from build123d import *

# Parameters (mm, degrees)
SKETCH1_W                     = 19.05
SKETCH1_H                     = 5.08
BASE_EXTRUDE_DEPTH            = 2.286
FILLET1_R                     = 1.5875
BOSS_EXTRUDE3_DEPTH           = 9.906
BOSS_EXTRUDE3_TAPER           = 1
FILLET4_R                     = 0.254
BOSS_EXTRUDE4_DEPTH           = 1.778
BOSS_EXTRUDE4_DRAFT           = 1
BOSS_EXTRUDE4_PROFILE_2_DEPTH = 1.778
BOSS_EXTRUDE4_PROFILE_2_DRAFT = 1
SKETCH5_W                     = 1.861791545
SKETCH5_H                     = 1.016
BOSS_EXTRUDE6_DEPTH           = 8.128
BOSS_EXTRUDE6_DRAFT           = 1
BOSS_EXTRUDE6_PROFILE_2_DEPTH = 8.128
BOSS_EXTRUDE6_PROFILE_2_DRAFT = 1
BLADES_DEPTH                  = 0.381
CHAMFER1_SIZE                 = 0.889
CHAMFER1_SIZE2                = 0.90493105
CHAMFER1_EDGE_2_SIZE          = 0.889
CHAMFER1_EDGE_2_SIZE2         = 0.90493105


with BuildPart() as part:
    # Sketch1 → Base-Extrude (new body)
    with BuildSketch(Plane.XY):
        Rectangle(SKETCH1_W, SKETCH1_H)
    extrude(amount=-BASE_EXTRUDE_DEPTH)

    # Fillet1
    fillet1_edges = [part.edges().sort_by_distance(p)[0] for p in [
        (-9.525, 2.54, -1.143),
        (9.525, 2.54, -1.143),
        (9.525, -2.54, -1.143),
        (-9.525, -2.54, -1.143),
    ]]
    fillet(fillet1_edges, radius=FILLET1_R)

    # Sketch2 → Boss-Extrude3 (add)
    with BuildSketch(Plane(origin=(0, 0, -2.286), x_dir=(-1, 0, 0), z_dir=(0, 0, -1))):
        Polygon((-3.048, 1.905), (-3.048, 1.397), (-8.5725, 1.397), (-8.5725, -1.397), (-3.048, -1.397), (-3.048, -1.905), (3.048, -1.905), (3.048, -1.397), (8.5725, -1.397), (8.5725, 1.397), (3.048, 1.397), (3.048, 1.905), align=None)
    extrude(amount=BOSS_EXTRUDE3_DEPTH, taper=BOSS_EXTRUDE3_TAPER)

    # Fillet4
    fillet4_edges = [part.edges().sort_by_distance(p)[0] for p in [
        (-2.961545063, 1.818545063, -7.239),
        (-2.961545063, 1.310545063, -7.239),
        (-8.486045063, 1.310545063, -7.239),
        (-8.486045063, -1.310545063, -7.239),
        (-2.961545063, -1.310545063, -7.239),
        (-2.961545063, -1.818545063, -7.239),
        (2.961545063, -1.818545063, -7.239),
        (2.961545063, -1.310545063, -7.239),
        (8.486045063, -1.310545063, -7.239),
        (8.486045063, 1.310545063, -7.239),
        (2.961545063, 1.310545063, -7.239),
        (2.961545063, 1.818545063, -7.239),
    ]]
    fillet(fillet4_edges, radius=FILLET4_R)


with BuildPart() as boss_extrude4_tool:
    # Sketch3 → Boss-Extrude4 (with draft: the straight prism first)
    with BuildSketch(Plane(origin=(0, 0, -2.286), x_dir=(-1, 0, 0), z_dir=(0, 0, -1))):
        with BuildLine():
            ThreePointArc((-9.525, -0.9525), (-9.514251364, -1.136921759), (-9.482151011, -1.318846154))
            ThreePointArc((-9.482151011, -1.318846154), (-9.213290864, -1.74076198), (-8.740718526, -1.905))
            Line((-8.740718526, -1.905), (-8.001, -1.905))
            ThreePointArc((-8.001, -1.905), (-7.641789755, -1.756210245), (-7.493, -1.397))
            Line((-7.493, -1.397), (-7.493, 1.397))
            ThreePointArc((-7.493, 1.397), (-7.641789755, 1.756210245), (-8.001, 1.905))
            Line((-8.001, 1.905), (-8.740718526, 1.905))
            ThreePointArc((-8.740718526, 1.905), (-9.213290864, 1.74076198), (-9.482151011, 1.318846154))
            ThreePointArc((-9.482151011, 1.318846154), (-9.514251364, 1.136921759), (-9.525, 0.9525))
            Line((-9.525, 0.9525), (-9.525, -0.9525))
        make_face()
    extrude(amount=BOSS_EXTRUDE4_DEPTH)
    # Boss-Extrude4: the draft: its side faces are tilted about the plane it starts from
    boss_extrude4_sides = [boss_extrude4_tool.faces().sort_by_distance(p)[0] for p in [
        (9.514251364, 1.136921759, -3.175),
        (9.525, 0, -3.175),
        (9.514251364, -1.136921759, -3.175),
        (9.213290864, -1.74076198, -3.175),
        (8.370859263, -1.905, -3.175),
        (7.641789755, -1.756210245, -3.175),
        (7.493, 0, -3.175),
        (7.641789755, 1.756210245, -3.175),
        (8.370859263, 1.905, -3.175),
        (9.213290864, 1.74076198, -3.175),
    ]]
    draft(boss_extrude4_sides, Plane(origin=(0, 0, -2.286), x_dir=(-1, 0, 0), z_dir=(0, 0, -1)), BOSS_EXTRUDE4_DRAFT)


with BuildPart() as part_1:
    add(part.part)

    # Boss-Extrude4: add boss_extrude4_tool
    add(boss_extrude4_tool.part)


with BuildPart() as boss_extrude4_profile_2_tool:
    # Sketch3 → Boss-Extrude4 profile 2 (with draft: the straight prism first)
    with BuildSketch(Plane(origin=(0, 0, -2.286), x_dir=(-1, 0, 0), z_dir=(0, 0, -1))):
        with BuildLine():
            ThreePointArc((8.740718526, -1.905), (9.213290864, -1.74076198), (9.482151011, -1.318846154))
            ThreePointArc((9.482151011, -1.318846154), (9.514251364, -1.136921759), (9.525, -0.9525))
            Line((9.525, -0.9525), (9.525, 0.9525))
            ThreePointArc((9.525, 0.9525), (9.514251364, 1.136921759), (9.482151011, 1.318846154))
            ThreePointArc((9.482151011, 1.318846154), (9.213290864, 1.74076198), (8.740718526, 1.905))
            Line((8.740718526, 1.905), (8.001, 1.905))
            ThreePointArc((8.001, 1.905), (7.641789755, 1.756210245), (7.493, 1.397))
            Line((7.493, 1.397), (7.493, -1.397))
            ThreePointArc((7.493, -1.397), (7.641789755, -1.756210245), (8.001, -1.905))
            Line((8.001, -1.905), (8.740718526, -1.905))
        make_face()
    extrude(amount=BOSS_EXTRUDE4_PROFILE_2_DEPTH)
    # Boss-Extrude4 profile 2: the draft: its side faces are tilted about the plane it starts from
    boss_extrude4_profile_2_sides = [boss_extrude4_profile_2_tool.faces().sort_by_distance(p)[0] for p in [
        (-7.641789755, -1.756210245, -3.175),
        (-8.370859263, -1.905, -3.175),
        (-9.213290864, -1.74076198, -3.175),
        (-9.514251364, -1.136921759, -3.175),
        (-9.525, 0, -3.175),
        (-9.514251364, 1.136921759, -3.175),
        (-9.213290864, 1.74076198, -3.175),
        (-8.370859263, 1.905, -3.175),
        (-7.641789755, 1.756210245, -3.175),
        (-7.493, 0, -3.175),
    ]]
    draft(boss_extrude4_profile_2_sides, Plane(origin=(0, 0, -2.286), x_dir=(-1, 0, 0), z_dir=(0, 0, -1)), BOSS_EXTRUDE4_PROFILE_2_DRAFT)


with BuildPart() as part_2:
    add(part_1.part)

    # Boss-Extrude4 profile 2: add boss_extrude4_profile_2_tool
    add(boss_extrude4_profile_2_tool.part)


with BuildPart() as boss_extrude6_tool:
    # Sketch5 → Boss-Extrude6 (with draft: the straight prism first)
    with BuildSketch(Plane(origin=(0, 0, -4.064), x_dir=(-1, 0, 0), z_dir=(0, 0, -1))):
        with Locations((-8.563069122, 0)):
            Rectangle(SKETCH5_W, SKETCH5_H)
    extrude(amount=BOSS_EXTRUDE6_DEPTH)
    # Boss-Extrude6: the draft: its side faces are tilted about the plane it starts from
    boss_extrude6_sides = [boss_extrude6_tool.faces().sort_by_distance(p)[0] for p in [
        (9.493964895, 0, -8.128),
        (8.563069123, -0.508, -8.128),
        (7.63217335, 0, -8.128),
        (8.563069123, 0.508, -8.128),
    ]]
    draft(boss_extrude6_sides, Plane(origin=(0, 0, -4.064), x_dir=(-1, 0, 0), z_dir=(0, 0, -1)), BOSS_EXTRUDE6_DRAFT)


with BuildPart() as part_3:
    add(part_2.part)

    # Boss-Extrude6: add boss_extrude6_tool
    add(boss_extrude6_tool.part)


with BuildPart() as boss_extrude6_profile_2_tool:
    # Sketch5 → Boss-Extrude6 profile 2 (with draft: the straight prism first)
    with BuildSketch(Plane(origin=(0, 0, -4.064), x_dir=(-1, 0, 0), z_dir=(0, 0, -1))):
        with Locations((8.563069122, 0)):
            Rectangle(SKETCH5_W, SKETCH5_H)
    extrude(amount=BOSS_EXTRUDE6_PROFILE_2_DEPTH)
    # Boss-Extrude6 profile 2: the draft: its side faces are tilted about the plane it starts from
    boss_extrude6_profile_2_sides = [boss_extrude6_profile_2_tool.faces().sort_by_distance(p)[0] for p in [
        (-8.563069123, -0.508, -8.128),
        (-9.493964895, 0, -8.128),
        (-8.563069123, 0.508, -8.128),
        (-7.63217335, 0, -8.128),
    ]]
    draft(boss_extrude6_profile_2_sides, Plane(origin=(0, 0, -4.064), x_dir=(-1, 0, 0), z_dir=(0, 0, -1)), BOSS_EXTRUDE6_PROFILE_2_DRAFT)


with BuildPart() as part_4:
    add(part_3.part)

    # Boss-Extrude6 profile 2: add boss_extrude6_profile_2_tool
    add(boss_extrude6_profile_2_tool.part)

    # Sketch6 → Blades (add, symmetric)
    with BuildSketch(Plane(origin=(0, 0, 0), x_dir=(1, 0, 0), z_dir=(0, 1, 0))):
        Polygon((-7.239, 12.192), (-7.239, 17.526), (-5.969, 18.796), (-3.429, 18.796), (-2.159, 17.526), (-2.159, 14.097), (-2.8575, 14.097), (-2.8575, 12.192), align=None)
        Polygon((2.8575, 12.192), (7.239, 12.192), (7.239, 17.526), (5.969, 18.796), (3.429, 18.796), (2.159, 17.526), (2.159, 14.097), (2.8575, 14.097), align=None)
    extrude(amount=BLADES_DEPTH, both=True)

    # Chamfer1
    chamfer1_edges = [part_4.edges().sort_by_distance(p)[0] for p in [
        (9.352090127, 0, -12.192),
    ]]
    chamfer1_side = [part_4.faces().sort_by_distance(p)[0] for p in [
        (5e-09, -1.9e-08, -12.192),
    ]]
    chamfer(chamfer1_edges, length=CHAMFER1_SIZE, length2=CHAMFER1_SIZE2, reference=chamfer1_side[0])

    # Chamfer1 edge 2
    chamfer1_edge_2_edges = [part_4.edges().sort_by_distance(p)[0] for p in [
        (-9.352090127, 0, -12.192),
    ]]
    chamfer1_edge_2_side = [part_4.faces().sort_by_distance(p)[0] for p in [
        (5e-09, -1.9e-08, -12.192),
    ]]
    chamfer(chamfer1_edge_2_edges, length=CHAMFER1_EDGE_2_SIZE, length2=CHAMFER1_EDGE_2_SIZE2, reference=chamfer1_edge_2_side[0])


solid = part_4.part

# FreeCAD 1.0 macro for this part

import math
import FreeCAD as App
import Part
import Sketcher

V = App.Vector
Q = App.Units.Quantity


def edges_at(feature, points):
    """Names of the edges that pass closest to the given points."""
    edges = feature.Shape.Edges
    near = lambda p: min(range(len(edges)), key=lambda i: edges[i].distToShape(Part.Vertex(*p))[0])
    return sorted({f"Edge{near(p) + 1}" for p in points})


def faces_at(feature, points):
    """Names of the faces that lie closest to the given points."""
    faces = feature.Shape.Faces
    near = lambda p: min(range(len(faces)), key=lambda i: faces[i].distToShape(Part.Vertex(*p))[0])
    return sorted({f"Face{near(p) + 1}" for p in points})


def add_polygon(sketch, points):
    """Adds a closed chain of lines whose ends are joined by coincident constraints."""
    first, n = sketch.GeometryCount, len(points)
    for a, b in zip(points, points[1:] + points[:1]):
        sketch.addGeometry(Part.LineSegment(App.Vector(*a, 0), App.Vector(*b, 0)), False)
    for i in range(n):
        sketch.addConstraint(Sketcher.Constraint("Coincident", first + i, 2, first + (i + 1) % n, 1))

doc = App.newDocument("Part")
params = doc.addObject("Spreadsheet::Sheet", "Params")
for row, (alias, value) in enumerate([
    ("sketch1_height", "0.2 in"),
    ("sketch1_width", "0.75 in"),
    ("pad1_length", "0.09 in"),
    ("fillet_radius", "0.0625 in"),
    ("sketch2_width", "0.24 in"),
    ("sketch2_height", "0.02 in"),
    ("sketch2_height2", "0.11 in"),
    ("pad2_length", "0.39 in"),
    ("pad2_taper", "-1 deg"),
    ("fillet2_radius", "0.01 in"),
    ("sketch3_radius", "0.03 in"),
    ("sketch3_radius2", "0.02 in"),
    ("sketch3_radius3", "0.0625 in"),
    ("sketch3_height", "0.11 in"),
    ("sketch3_height2", "0.075 in"),
    ("pad3_length", "0.07 in"),
    ("draft_angle", "1 deg"),
    ("sketch4_radius", "0.03 in"),
    ("sketch4_radius2", "0.02 in"),
    ("sketch4_radius3", "0.0625 in"),
    ("sketch4_height", "0.11 in"),
    ("sketch4_height2", "0.075 in"),
    ("pad4_length", "0.07 in"),
    ("draft2_angle", "1 deg"),
    ("sketch5_height", "0.04 in"),
    ("pad5_length", "0.32 in"),
    ("draft3_angle", "1 deg"),
    ("sketch6_height", "0.04 in"),
    ("pad6_length", "0.32 in"),
    ("draft4_angle", "1 deg"),
    ("sketch7_width", "0.1 in"),
    ("sketch7_height", "0.21 in"),
    ("sketch7_height2", "0.075 in"),
    ("pad7_length", "0.03 in"),
    ("chamfer_size", "0.035 in"),
    ("chamfer_size2", "0.904931 mm"),
    ("chamfer2_size", "0.035 in"),
    ("chamfer2_size2", "0.904931 mm"),
], start=1):
    params.set(f"A{row}", alias)
    params.set(f"B{row}", "=" + value)
    params.setAlias(f"B{row}", alias)

body = doc.addObject("PartDesign::Body", "Body")

sketch1 = body.newObject("Sketcher::SketchObject", "Sketch")
sketch1.AttachmentSupport = (doc.getObject("XY_Plane"), [""])
sketch1.MapMode = "FlatFace"
add_polygon(sketch1, [(-9.525, 2.54), (-9.525, -2.54), (9.525, -2.54), (9.525, 2.54)])
sketch1.addConstraint([
    Sketcher.Constraint("Vertical", 0),
    Sketcher.Constraint("Horizontal", 1),
    Sketcher.Constraint("Vertical", 2),
    Sketcher.Constraint("Horizontal", 3),
    Sketcher.Constraint("Symmetric", 0, 2, 2, 2, -1, 1),
    Sketcher.Constraint("DistanceY", 0, 2, 0, 1, Q("0.2 in")),
    Sketcher.Constraint("DistanceX", 1, 1, 1, 2, Q("0.75 in")),
])
sketch1.setExpression("Constraints[9]", "Params.sketch1_height")
sketch1.setExpression("Constraints[10]", "Params.sketch1_width")
pad1 = body.newObject("PartDesign::Pad", "Pad")
pad1.Profile = sketch1
pad1.setExpression("Length", "Params.pad1_length")
pad1.Reversed = True
doc.recompute()

fillet = body.newObject("PartDesign::Fillet", "Fillet")
fillet.Base = (pad1, edges_at(pad1, [
    (-9.525, 2.54, -1.143),
    (9.525, 2.54, -1.143),
    (9.525, -2.54, -1.143),
    (-9.525, -2.54, -1.143),
]))
fillet.setExpression("Radius", "Params.fillet_radius")

sketch2 = body.newObject("Sketcher::SketchObject", "Sketch001")
sketch2.AttachmentSupport = (doc.getObject("XY_Plane"), [""])
sketch2.MapMode = "FlatFace"
sketch2.AttachmentOffset = App.Placement(V(0, 0, -0.09 * 25.4), App.Rotation())
add_polygon(sketch2, [(3.048, 1.905), (3.048, 1.397), (8.5725, 1.397), (8.5725, -1.397), (3.048, -1.397), (3.048, -1.905), (-3.048, -1.905), (-3.048, -1.397), (-8.5725, -1.397), (-8.5725, 1.397), (-3.048, 1.397), (-3.048, 1.905)])
sketch2.addConstraint([
    Sketcher.Constraint("Vertical", 0),
    Sketcher.Constraint("Horizontal", 1),
    Sketcher.Constraint("Vertical", 2),
    Sketcher.Constraint("Horizontal", 3),
    Sketcher.Constraint("Vertical", 4),
    Sketcher.Constraint("Horizontal", 5),
    Sketcher.Constraint("Vertical", 6),
    Sketcher.Constraint("Horizontal", 7),
    Sketcher.Constraint("Vertical", 8),
    Sketcher.Constraint("Horizontal", 9),
    Sketcher.Constraint("Vertical", 10),
    Sketcher.Constraint("Horizontal", 11),
    Sketcher.Constraint("Symmetric", 0, 2, 6, 2, -1, 1),
    Sketcher.Constraint("Symmetric", 2, 2, 8, 2, -1, 1),
    Sketcher.Constraint("Symmetric", 4, 2, 10, 2, -1, 1),
    Sketcher.Constraint("Symmetric", 3, 2, 6, 2, -2),
    Sketcher.Constraint("DistanceX", 5, 2, 5, 1, Q("0.24 in")),
    Sketcher.Constraint("DistanceY", 0, 2, 0, 1, Q("0.02 in")),
    Sketcher.Constraint("DistanceY", 2, 2, 2, 1, Q("0.11 in")),
    Sketcher.Constraint("DistanceX", 1, 1, 1, 2, Q("0.2175 in")),
])
sketch2.setExpression("Constraints[28]", "Params.sketch2_width")
sketch2.setExpression("Constraints[29]", "Params.sketch2_height")
sketch2.setExpression("Constraints[30]", "Params.sketch2_height2")
pad2 = body.newObject("PartDesign::Pad", "Pad001")
pad2.Profile = sketch2
pad2.setExpression("Length", "Params.pad2_length")
pad2.Reversed = True
pad2.setExpression("TaperAngle", "Params.pad2_taper")
doc.recompute()

fillet2 = body.newObject("PartDesign::Fillet", "Fillet001")
fillet2.Base = (pad2, edges_at(pad2, [
    (-2.962, 1.819, -7.239),
    (-2.962, 1.311, -7.239),
    (-8.486, 1.311, -7.239),
    (-8.486, -1.311, -7.239),
    (-2.962, -1.311, -7.239),
    (-2.962, -1.819, -7.239),
    (2.962, -1.819, -7.239),
    (2.962, -1.311, -7.239),
    (8.486, -1.311, -7.239),
    (8.486, 1.311, -7.239),
    (2.962, 1.311, -7.239),
    (2.962, 1.819, -7.239),
]))
fillet2.setExpression("Radius", "Params.fillet2_radius")
body2 = doc.addObject("PartDesign::Body", "Body001")

sketch3 = body2.newObject("Sketcher::SketchObject", "Sketch002")
sketch3.AttachmentSupport = (doc.getObject("XY_Plane001"), [""])
sketch3.MapMode = "FlatFace"
sketch3.AttachmentOffset = App.Placement(V(0, 0, -0.09 * 25.4), App.Rotation())
sketch3.addGeometry([
    Part.ArcOfCircle(Part.Circle(V(7.9375, -0.9525, 0), V(0, 0, 1), 1.5875), math.radians(-13.342364), math.radians(0)),
    Part.ArcOfCircle(Part.Circle(V(8.740719, -1.143, 0), V(0, 0, 1), 0.762), math.radians(-90), math.radians(-13.342364)),
    Part.LineSegment(V(8.740719, -1.905, 0), V(8.001, -1.905, 0)),
    Part.ArcOfCircle(Part.Circle(V(8.001, -1.397, 0), V(0, 0, 1), 0.508), math.radians(180), math.radians(270)),
    Part.LineSegment(V(7.493, -1.397, 0), V(7.493, 1.397, 0)),
    Part.ArcOfCircle(Part.Circle(V(8.001, 1.397, 0), V(0, 0, 1), 0.508), math.radians(90), math.radians(180)),
    Part.LineSegment(V(8.001, 1.905, 0), V(8.740719, 1.905, 0)),
    Part.ArcOfCircle(Part.Circle(V(8.740719, 1.143, 0), V(0, 0, 1), 0.762), math.radians(13.342364), math.radians(90)),
    Part.ArcOfCircle(Part.Circle(V(7.9375, 0.9525, 0), V(0, 0, 1), 1.5875), math.radians(0), math.radians(13.342364)),
    Part.LineSegment(V(9.525, 0.9525, 0), V(9.525, -0.9525, 0)),
], False)
sketch3.addConstraint([
    Sketcher.Constraint("Tangent", 0, 1, 1, 2),
    Sketcher.Constraint("Tangent", 1, 1, 2, 1),
    Sketcher.Constraint("Tangent", 2, 2, 3, 2),
    Sketcher.Constraint("Tangent", 3, 1, 4, 1),
    Sketcher.Constraint("Tangent", 4, 2, 5, 2),
    Sketcher.Constraint("Tangent", 5, 1, 6, 1),
    Sketcher.Constraint("Tangent", 6, 2, 7, 2),
    Sketcher.Constraint("Tangent", 7, 1, 8, 2),
    Sketcher.Constraint("Tangent", 8, 1, 9, 1),
    Sketcher.Constraint("Tangent", 9, 2, 0, 2),
    Sketcher.Constraint("Horizontal", 2),
    Sketcher.Constraint("Vertical", 4),
    Sketcher.Constraint("Horizontal", 6),
    Sketcher.Constraint("Vertical", 9),
    Sketcher.Constraint("Equal", 3, 5),
    Sketcher.Constraint("Equal", 1, 7),
    Sketcher.Constraint("Equal", 0, 8),
    Sketcher.Constraint("Symmetric", 1, 3, 7, 3, -1),
    Sketcher.Constraint("Radius", 1, Q("0.03 in")),
    Sketcher.Constraint("Radius", 3, Q("0.02 in")),
    Sketcher.Constraint("Radius", 0, Q("0.0625 in")),
    Sketcher.Constraint("DistanceY", 4, 1, 4, 2, Q("0.11 in")),
    Sketcher.Constraint("DistanceY", 9, 2, 9, 1, Q("0.075 in")),
    Sketcher.Constraint("DistanceX", 5, 3, 8, 1, Q("0.06 in")),
    Sketcher.Constraint("DistanceX", -1, 1, 0, 3, Q("0.3125 in")),
])
sketch3.setExpression("Constraints[18]", "Params.sketch3_radius")
sketch3.setExpression("Constraints[19]", "Params.sketch3_radius2")
sketch3.setExpression("Constraints[20]", "Params.sketch3_radius3")
sketch3.setExpression("Constraints[21]", "Params.sketch3_height")
sketch3.setExpression("Constraints[22]", "Params.sketch3_height2")
pad3 = body2.newObject("PartDesign::Pad", "Pad002")
pad3.Profile = sketch3
pad3.setExpression("Length", "Params.pad3_length")
pad3.Reversed = True
doc.recompute()

datumplane = body2.newObject("PartDesign::Plane", "DatumPlane")
datumplane.AttachmentSupport = (doc.getObject("XY_Plane001"), [""])
datumplane.MapMode = "FlatFace"
datumplane.AttachmentOffset = App.Placement(V(0, 0, -0.09 * 25.4), App.Rotation())
draft = body2.newObject("PartDesign::Draft", "Draft")
draft.Base = (pad3, faces_at(pad3, [
    (9.514, 1.137, -3.175),
    (9.525, 0, -3.175),
    (9.514, -1.137, -3.175),
    (9.213, -1.741, -3.175),
    (8.371, -1.905, -3.175),
    (7.642, -1.756, -3.175),
    (7.493, 0, -3.175),
    (7.642, 1.756, -3.175),
    (8.371, 1.905, -3.175),
    (9.213, 1.741, -3.175),
]))
draft.NeutralPlane = (datumplane, [""])
draft.setExpression("Angle", "Params.draft_angle")
draft.Reversed = True
doc.recompute()

boolean = body.newObject("PartDesign::Boolean", "Boolean")
boolean.Type = "Fuse"
boolean.addObjects([body2])
body3 = doc.addObject("PartDesign::Body", "Body002")

sketch4 = body3.newObject("Sketcher::SketchObject", "Sketch003")
sketch4.AttachmentSupport = (doc.getObject("XY_Plane002"), [""])
sketch4.MapMode = "FlatFace"
sketch4.AttachmentOffset = App.Placement(V(0, 0, -0.09 * 25.4), App.Rotation())
sketch4.addGeometry([
    Part.ArcOfCircle(Part.Circle(V(-8.740719, -1.143, 0), V(0, 0, 1), 0.762), math.radians(-166.657636), math.radians(-90)),
    Part.ArcOfCircle(Part.Circle(V(-7.9375, -0.9525, 0), V(0, 0, 1), 1.5875), math.radians(-180), math.radians(-166.657636)),
    Part.LineSegment(V(-9.525, -0.9525, 0), V(-9.525, 0.9525, 0)),
    Part.ArcOfCircle(Part.Circle(V(-7.9375, 0.9525, 0), V(0, 0, 1), 1.5875), math.radians(166.657636), math.radians(180)),
    Part.ArcOfCircle(Part.Circle(V(-8.740719, 1.143, 0), V(0, 0, 1), 0.762), math.radians(90), math.radians(166.657636)),
    Part.LineSegment(V(-8.740719, 1.905, 0), V(-8.001, 1.905, 0)),
    Part.ArcOfCircle(Part.Circle(V(-8.001, 1.397, 0), V(0, 0, 1), 0.508), math.radians(0), math.radians(90)),
    Part.LineSegment(V(-7.493, 1.397, 0), V(-7.493, -1.397, 0)),
    Part.ArcOfCircle(Part.Circle(V(-8.001, -1.397, 0), V(0, 0, 1), 0.508), math.radians(-90), math.radians(0)),
    Part.LineSegment(V(-8.001, -1.905, 0), V(-8.740719, -1.905, 0)),
], False)
sketch4.addConstraint([
    Sketcher.Constraint("Tangent", 0, 1, 1, 2),
    Sketcher.Constraint("Tangent", 1, 1, 2, 1),
    Sketcher.Constraint("Tangent", 2, 2, 3, 2),
    Sketcher.Constraint("Tangent", 3, 1, 4, 2),
    Sketcher.Constraint("Tangent", 4, 1, 5, 1),
    Sketcher.Constraint("Tangent", 5, 2, 6, 2),
    Sketcher.Constraint("Tangent", 6, 1, 7, 1),
    Sketcher.Constraint("Tangent", 7, 2, 8, 2),
    Sketcher.Constraint("Tangent", 8, 1, 9, 1),
    Sketcher.Constraint("Tangent", 9, 2, 0, 2),
    Sketcher.Constraint("Vertical", 2),
    Sketcher.Constraint("Horizontal", 5),
    Sketcher.Constraint("Vertical", 7),
    Sketcher.Constraint("Horizontal", 9),
    Sketcher.Constraint("Equal", 1, 3),
    Sketcher.Constraint("Equal", 0, 4),
    Sketcher.Constraint("Equal", 6, 8),
    Sketcher.Constraint("Symmetric", 0, 3, 4, 3, -1),
    Sketcher.Constraint("Radius", 0, Q("0.03 in")),
    Sketcher.Constraint("Radius", 6, Q("0.02 in")),
    Sketcher.Constraint("Radius", 1, Q("0.0625 in")),
    Sketcher.Constraint("DistanceY", 7, 2, 7, 1, Q("0.11 in")),
    Sketcher.Constraint("DistanceY", 2, 1, 2, 2, Q("0.075 in")),
    Sketcher.Constraint("DistanceX", 1, 1, 8, 3, Q("0.06 in")),
    Sketcher.Constraint("DistanceX", 1, 3, -1, 1, Q("0.3125 in")),
])
sketch4.setExpression("Constraints[18]", "Params.sketch4_radius")
sketch4.setExpression("Constraints[19]", "Params.sketch4_radius2")
sketch4.setExpression("Constraints[20]", "Params.sketch4_radius3")
sketch4.setExpression("Constraints[21]", "Params.sketch4_height")
sketch4.setExpression("Constraints[22]", "Params.sketch4_height2")
pad4 = body3.newObject("PartDesign::Pad", "Pad003")
pad4.Profile = sketch4
pad4.setExpression("Length", "Params.pad4_length")
pad4.Reversed = True
doc.recompute()

datumplane2 = body3.newObject("PartDesign::Plane", "DatumPlane001")
datumplane2.AttachmentSupport = (doc.getObject("XY_Plane002"), [""])
datumplane2.MapMode = "FlatFace"
datumplane2.AttachmentOffset = App.Placement(V(0, 0, -0.09 * 25.4), App.Rotation())
draft2 = body3.newObject("PartDesign::Draft", "Draft001")
draft2.Base = (pad4, faces_at(pad4, [
    (-7.642, -1.756, -3.175),
    (-8.371, -1.905, -3.175),
    (-9.213, -1.741, -3.175),
    (-9.514, -1.137, -3.175),
    (-9.525, 0, -3.175),
    (-9.514, 1.137, -3.175),
    (-9.213, 1.741, -3.175),
    (-8.371, 1.905, -3.175),
    (-7.642, 1.756, -3.175),
    (-7.493, 0, -3.175),
]))
draft2.NeutralPlane = (datumplane2, [""])
draft2.setExpression("Angle", "Params.draft2_angle")
draft2.Reversed = True
doc.recompute()

boolean2 = body.newObject("PartDesign::Boolean", "Boolean001")
boolean2.Type = "Fuse"
boolean2.addObjects([body3])
body4 = doc.addObject("PartDesign::Body", "Body003")

sketch5 = body4.newObject("Sketcher::SketchObject", "Sketch004")
sketch5.AttachmentSupport = (doc.getObject("XY_Plane003"), [""])
sketch5.MapMode = "FlatFace"
sketch5.AttachmentOffset = App.Placement(V(0, 0, -0.16 * 25.4), App.Rotation())
add_polygon(sketch5, [(9.493965, 0.508), (9.493965, -0.508), (7.632173, -0.508), (7.632173, 0.508)])
sketch5.addConstraint([
    Sketcher.Constraint("Vertical", 0),
    Sketcher.Constraint("Horizontal", 1),
    Sketcher.Constraint("Vertical", 2),
    Sketcher.Constraint("Horizontal", 3),
    Sketcher.Constraint("DistanceY", 0, 2, 0, 1, Q("0.04 in")),
    Sketcher.Constraint("DistanceY", 0, 2, -1, 1, Q("0.02 in")),
    Sketcher.Constraint("DistanceX", 1, 2, 1, 1, Q("1.861792 mm")),
    Sketcher.Constraint("DistanceX", -1, 1, 0, 2, Q("9.493965 mm")),
])
sketch5.setExpression("Constraints[8]", "Params.sketch5_height")
pad5 = body4.newObject("PartDesign::Pad", "Pad004")
pad5.Profile = sketch5
pad5.setExpression("Length", "Params.pad5_length")
pad5.Reversed = True
doc.recompute()

datumplane3 = body4.newObject("PartDesign::Plane", "DatumPlane002")
datumplane3.AttachmentSupport = (doc.getObject("XY_Plane003"), [""])
datumplane3.MapMode = "FlatFace"
datumplane3.AttachmentOffset = App.Placement(V(0, 0, -0.16 * 25.4), App.Rotation())
draft3 = body4.newObject("PartDesign::Draft", "Draft002")
draft3.Base = (pad5, faces_at(pad5, [
    (9.494, 0, -8.128),
    (8.563, -0.508, -8.128),
    (7.632, 0, -8.128),
    (8.563, 0.508, -8.128),
]))
draft3.NeutralPlane = (datumplane3, [""])
draft3.setExpression("Angle", "Params.draft3_angle")
draft3.Reversed = True
doc.recompute()

boolean3 = body.newObject("PartDesign::Boolean", "Boolean002")
boolean3.Type = "Fuse"
boolean3.addObjects([body4])
body5 = doc.addObject("PartDesign::Body", "Body004")

sketch6 = body5.newObject("Sketcher::SketchObject", "Sketch005")
sketch6.AttachmentSupport = (doc.getObject("XY_Plane004"), [""])
sketch6.MapMode = "FlatFace"
sketch6.AttachmentOffset = App.Placement(V(0, 0, -0.16 * 25.4), App.Rotation())
add_polygon(sketch6, [(-7.632173, 0.508), (-7.632173, -0.508), (-9.493965, -0.508), (-9.493965, 0.508)])
sketch6.addConstraint([
    Sketcher.Constraint("Vertical", 0),
    Sketcher.Constraint("Horizontal", 1),
    Sketcher.Constraint("Vertical", 2),
    Sketcher.Constraint("Horizontal", 3),
    Sketcher.Constraint("DistanceY", 0, 2, 0, 1, Q("0.04 in")),
    Sketcher.Constraint("DistanceY", 0, 2, -1, 1, Q("0.02 in")),
    Sketcher.Constraint("DistanceX", 1, 2, 1, 1, Q("1.861792 mm")),
    Sketcher.Constraint("DistanceX", 0, 2, -1, 1, Q("7.632173 mm")),
])
sketch6.setExpression("Constraints[8]", "Params.sketch6_height")
pad6 = body5.newObject("PartDesign::Pad", "Pad005")
pad6.Profile = sketch6
pad6.setExpression("Length", "Params.pad6_length")
pad6.Reversed = True
doc.recompute()

datumplane4 = body5.newObject("PartDesign::Plane", "DatumPlane003")
datumplane4.AttachmentSupport = (doc.getObject("XY_Plane004"), [""])
datumplane4.MapMode = "FlatFace"
datumplane4.AttachmentOffset = App.Placement(V(0, 0, -0.16 * 25.4), App.Rotation())
draft4 = body5.newObject("PartDesign::Draft", "Draft003")
draft4.Base = (pad6, faces_at(pad6, [
    (-8.563, -0.508, -8.128),
    (-9.494, 0, -8.128),
    (-8.563, 0.508, -8.128),
    (-7.632, 0, -8.128),
]))
draft4.NeutralPlane = (datumplane4, [""])
draft4.setExpression("Angle", "Params.draft4_angle")
draft4.Reversed = True
doc.recompute()

boolean4 = body.newObject("PartDesign::Boolean", "Boolean003")
boolean4.Type = "Fuse"
boolean4.addObjects([body5])

sketch7 = body.newObject("Sketcher::SketchObject", "Sketch006")
sketch7.AttachmentSupport = (doc.getObject("XZ_Plane"), [""])
sketch7.MapMode = "FlatFace"
add_polygon(sketch7, [(-7.239, -17.526), (-7.239, -12.192), (-2.8575, -12.192), (-2.8575, -14.097), (-2.159, -14.097), (-2.159, -17.526), (-3.429, -18.796), (-5.969, -18.796)])
add_polygon(sketch7, [(2.8575, -12.192), (7.239, -12.192), (7.239, -17.526), (5.969, -18.796), (3.429, -18.796), (2.159, -17.526), (2.159, -14.097), (2.8575, -14.097)])
sketch7.addConstraint([
    Sketcher.Constraint("Vertical", 0),
    Sketcher.Constraint("Horizontal", 1),
    Sketcher.Constraint("Vertical", 2),
    Sketcher.Constraint("Horizontal", 3),
    Sketcher.Constraint("Vertical", 4),
    Sketcher.Constraint("Horizontal", 6),
    Sketcher.Constraint("Horizontal", 8),
    Sketcher.Constraint("Vertical", 9),
    Sketcher.Constraint("Horizontal", 11),
    Sketcher.Constraint("Vertical", 13),
    Sketcher.Constraint("Horizontal", 14),
    Sketcher.Constraint("Vertical", 15),
    Sketcher.Constraint("Symmetric", 0, 2, 8, 2, -2),
    Sketcher.Constraint("Symmetric", 6, 2, 10, 2, -2),
    Sketcher.Constraint("Symmetric", 4, 2, 12, 2, -2),
    Sketcher.Constraint("Symmetric", 2, 2, 14, 2, -2),
    Sketcher.Constraint("Perpendicular", 5, 7),
    Sketcher.Constraint("Perpendicular", 7, 10),
    Sketcher.Constraint("Perpendicular", 10, 12),
    Sketcher.Constraint("Horizontal", 4, 2, 7, 2),
    Sketcher.Constraint("Horizontal", 7, 2, 9, 2),
    Sketcher.Constraint("DistanceX", 6, 2, 6, 1, Q("0.1 in")),
    Sketcher.Constraint("DistanceY", 0, 1, 0, 2, Q("0.21 in")),
    Sketcher.Constraint("DistanceX", 0, 2, 3, 2, Q("0.2 in")),
    Sketcher.Constraint("DistanceY", 2, 2, 2, 1, Q("0.075 in")),
    Sketcher.Constraint("DistanceY", 0, 2, -1, 1, Q("0.48 in")),
    Sketcher.Constraint("DistanceX", 3, 2, 8, 2, Q("0.37 in")),
    Sketcher.Constraint("DistanceX", 1, 1, 1, 2, Q("0.1725 in")),
])
sketch7.setExpression("Constraints[37]", "Params.sketch7_width")
sketch7.setExpression("Constraints[38]", "Params.sketch7_height")
sketch7.setExpression("Constraints[40]", "Params.sketch7_height2")
pad7 = body.newObject("PartDesign::Pad", "Pad006")
pad7.Profile = sketch7
pad7.setExpression("Length", "Params.pad7_length")
pad7.Midplane = True
doc.recompute()

chamfer = body.newObject("PartDesign::Chamfer", "Chamfer")
chamfer.Base = (pad7, edges_at(pad7, [(9.352, 0, -12.192)]))
chamfer.ChamferType = "Two distances"
chamfer.setExpression("Size", "Params.chamfer_size")
chamfer.setExpression("Size2", "Params.chamfer_size2")
doc.recompute()

chamfer2 = body.newObject("PartDesign::Chamfer", "Chamfer001")
chamfer2.Base = (chamfer, edges_at(chamfer, [(-9.352, 0, -12.192)]))
chamfer2.ChamferType = "Two distances"
chamfer2.setExpression("Size", "Params.chamfer2_size")
chamfer2.setExpression("Size2", "Params.chamfer2_size2")

doc.recompute()
